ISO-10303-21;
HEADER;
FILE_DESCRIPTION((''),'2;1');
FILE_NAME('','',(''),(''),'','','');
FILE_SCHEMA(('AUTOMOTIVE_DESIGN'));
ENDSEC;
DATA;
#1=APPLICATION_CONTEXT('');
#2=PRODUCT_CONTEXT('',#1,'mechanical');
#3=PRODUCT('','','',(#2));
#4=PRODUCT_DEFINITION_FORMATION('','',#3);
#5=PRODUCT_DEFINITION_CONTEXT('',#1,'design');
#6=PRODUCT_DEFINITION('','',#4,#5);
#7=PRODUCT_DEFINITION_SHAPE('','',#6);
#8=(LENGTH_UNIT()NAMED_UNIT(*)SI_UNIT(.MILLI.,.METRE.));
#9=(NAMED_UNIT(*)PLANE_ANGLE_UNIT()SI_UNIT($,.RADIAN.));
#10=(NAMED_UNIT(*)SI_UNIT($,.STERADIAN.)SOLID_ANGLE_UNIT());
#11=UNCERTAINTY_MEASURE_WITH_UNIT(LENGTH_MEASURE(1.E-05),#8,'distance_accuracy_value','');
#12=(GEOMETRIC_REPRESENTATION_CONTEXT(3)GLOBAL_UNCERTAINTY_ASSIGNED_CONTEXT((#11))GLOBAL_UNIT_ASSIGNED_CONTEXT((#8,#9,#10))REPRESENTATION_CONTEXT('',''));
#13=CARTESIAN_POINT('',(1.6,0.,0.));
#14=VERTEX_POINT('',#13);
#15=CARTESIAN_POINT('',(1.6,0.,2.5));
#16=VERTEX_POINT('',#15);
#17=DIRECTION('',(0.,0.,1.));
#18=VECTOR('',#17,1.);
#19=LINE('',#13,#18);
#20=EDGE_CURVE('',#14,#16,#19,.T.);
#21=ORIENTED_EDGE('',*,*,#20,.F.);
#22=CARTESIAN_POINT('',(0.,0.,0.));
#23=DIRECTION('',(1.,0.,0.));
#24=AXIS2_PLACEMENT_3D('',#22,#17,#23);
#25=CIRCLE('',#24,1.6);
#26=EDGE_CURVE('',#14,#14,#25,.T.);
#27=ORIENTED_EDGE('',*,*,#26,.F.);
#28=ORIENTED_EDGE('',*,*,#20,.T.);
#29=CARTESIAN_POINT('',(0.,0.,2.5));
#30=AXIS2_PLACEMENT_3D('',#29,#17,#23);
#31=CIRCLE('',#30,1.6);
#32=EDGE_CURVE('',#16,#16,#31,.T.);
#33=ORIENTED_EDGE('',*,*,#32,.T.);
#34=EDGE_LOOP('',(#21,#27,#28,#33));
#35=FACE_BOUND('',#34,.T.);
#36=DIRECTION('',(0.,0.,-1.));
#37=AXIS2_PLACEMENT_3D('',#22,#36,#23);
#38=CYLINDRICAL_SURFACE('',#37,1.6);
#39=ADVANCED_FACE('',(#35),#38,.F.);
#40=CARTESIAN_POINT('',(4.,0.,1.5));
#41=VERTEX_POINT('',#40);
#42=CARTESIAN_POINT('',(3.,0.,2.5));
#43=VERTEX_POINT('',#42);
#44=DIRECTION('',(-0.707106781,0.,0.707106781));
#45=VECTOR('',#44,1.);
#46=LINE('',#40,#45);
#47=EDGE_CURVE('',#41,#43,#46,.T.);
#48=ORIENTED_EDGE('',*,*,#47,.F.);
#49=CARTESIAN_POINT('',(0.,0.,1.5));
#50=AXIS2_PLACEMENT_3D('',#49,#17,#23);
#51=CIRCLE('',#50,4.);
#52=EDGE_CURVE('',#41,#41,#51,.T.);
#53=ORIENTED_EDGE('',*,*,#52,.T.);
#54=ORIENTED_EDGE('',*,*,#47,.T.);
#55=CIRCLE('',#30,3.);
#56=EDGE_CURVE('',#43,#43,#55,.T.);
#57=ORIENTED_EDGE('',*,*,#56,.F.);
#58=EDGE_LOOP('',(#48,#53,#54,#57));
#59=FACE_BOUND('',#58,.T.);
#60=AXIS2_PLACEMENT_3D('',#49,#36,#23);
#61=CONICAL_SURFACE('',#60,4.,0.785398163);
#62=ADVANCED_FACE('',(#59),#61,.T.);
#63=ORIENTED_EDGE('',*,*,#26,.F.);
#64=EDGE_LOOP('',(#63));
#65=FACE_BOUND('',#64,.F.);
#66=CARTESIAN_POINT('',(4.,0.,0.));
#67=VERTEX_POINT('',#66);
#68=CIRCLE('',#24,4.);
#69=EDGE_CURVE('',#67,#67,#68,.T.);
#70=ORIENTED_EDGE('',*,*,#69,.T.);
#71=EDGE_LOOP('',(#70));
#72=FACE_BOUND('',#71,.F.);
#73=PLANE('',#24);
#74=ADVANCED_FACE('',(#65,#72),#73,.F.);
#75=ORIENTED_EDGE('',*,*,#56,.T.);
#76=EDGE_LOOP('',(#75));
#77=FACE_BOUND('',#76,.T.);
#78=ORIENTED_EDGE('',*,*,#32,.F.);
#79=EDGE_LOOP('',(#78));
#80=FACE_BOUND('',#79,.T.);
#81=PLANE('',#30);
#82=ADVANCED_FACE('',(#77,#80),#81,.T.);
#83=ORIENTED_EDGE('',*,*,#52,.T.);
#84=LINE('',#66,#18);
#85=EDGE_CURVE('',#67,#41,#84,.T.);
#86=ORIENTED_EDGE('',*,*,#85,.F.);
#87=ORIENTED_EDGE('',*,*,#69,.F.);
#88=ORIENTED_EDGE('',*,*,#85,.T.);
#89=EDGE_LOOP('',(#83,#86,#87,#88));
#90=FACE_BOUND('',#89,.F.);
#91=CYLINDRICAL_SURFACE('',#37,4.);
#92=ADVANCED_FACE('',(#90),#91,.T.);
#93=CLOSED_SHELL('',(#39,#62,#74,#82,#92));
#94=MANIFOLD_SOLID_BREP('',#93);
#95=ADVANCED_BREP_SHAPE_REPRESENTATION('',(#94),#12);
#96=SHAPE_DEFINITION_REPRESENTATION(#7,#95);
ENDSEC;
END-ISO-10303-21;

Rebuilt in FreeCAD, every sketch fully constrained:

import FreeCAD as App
import Part
import Sketcher
from FreeCAD import Vector


def edges_at(feature, points):
    """Names of the edges that pass closest to the given points."""
    edges = feature.Shape.Edges
    near = lambda p: min(range(len(edges)), key=lambda i: edges[i].distToShape(Part.Vertex(*p))[0])
    return sorted({f"Edge{near(p) + 1}" for p in points})

doc = App.newDocument("Part")
body = doc.addObject("PartDesign::Body", "Body")

# Sketch on XY plane
sketch1 = doc.addObject("Sketcher::SketchObject", "Sketch")
body.addObject(sketch1)
sketch1.AttachmentSupport = (doc.XY_Plane, [""])
sketch1.MapMode = "FlatFace"
sketch1.addGeometry(Part.Circle(Vector(0, 0, 0), Vector(0, 0, 1), 4), False)
sketch1.addGeometry(Part.Circle(Vector(0, 0, 0), Vector(0, 0, 1), 1.6), False)
sketch1.addConstraint(Sketcher.Constraint("Coincident", 0, 3, -1, 1))
sketch1.addConstraint(Sketcher.Constraint("Coincident", 1, 3, -1, 1))
sketch1.addConstraint(Sketcher.Constraint("Diameter", 0, 8.0))
sketch1.addConstraint(Sketcher.Constraint("Diameter", 1, 3.2))
pad1 = doc.addObject("PartDesign::Pad", "Pad")
body.addObject(pad1)
pad1.Profile = sketch1
pad1.Length = 2.5
doc.recompute()

chamfer = doc.addObject("PartDesign::Chamfer", "Chamfer")
body.addObject(chamfer)
chamfer.Base = (pad1, edges_at(pad1, [(-4, 0, 2.5)]))
chamfer.Size = 1

doc.recompute()
